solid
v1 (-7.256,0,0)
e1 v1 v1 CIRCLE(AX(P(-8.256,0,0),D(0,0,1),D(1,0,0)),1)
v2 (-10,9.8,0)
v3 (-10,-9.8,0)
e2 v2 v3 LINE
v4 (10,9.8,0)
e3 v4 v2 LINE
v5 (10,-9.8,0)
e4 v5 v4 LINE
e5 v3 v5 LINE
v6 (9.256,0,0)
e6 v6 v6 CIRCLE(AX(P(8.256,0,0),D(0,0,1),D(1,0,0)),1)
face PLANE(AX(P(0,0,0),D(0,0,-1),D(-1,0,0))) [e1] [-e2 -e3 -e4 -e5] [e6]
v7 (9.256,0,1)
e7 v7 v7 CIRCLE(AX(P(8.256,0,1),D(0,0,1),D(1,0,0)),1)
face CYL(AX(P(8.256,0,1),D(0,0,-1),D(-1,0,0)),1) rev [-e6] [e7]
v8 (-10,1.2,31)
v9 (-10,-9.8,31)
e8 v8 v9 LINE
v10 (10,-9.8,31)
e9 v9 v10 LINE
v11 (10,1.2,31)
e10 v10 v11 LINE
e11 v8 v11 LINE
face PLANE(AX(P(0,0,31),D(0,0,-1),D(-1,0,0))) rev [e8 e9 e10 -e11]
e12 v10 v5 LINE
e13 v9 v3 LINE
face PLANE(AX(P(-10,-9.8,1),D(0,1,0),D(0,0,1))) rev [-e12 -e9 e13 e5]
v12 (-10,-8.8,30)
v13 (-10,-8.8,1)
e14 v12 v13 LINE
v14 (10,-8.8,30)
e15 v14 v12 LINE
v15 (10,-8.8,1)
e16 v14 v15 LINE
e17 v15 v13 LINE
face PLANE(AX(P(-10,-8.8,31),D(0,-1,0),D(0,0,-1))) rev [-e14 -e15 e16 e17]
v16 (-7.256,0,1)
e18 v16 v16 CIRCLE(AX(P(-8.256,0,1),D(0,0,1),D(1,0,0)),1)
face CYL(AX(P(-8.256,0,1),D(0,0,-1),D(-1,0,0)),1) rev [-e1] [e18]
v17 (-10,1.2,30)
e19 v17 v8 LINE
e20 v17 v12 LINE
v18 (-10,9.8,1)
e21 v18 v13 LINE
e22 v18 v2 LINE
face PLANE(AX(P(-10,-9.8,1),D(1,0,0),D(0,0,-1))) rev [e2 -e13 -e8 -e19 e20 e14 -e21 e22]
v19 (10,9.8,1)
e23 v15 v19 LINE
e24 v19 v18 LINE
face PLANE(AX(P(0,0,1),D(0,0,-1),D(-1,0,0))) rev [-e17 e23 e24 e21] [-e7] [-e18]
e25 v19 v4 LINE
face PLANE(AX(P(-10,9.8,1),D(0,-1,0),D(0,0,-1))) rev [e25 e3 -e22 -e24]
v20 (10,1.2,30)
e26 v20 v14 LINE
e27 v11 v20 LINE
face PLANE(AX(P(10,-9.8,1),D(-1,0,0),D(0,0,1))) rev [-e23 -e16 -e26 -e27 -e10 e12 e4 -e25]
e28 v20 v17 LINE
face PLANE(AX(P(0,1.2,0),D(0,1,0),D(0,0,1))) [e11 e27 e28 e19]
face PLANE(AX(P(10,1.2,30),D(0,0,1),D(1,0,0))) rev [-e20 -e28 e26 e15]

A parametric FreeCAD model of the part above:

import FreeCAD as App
import Part
import Sketcher
from FreeCAD import Vector


def add_polygon(sketch, points):
    """Adds a closed chain of lines whose ends are joined by coincident constraints."""
    first, n = sketch.GeometryCount, len(points)
    for a, b in zip(points, points[1:] + points[:1]):
        sketch.addGeometry(Part.LineSegment(App.Vector(*a, 0), App.Vector(*b, 0)), False)
    for i in range(n):
        sketch.addConstraint(Sketcher.Constraint("Coincident", first + i, 2, first + (i + 1) % n, 1))

doc = App.newDocument("Part")
body = doc.addObject("PartDesign::Body", "Body")

# Sketch on XY plane
sketch1 = body.newObject("Sketcher::SketchObject", "Sketch")
sketch1.AttachmentSupport = (doc.getObject("XY_Plane"), [""])
sketch1.MapMode = "FlatFace"
add_polygon(sketch1, [(-10, 9.8), (-10, -9.8), (10, -9.8), (10, 9.8)])  # lines 0-3
sketch1.addGeometry(Part.Circle(Vector(-8.256, 0, 0), Vector(0, 0, 1), 1), False)  # 4
sketch1.addGeometry(Part.Circle(Vector(8.256, 0, 0), Vector(0, 0, 1), 1), False)  # 5
sketch1.addConstraint(Sketcher.Constraint("Vertical", 0))
sketch1.addConstraint(Sketcher.Constraint("Horizontal", 1))
sketch1.addConstraint(Sketcher.Constraint("Vertical", 2))
sketch1.addConstraint(Sketcher.Constraint("Horizontal", 3))
sketch1.addConstraint(Sketcher.Constraint("Equal", 4, 5))
sketch1.addConstraint(Sketcher.Constraint("Symmetric", 4, 3, 5, 3, -1, 1))
sketch1.addConstraint(Sketcher.Constraint("Symmetric", 0, 2, 2, 2, -1, 1))
sketch1.addConstraint(Sketcher.Constraint("PointOnObject", 4, 3, -1))
sketch1.addConstraint(Sketcher.Constraint("Diameter", 4, 2.0))
sketch1.addConstraint(Sketcher.Constraint("DistanceX", 1, 1, 1, 2, 20.0))
sketch1.addConstraint(Sketcher.Constraint("DistanceY", 0, 2, 0, 1, 19.6))
sketch1.addConstraint(Sketcher.Constraint("DistanceX", 4, 3, -1, 1, 8.256))
pad1 = body.newObject("PartDesign::Pad", "Pad")
pad1.Profile = sketch1
pad1.Length = 1

# Sketch on XY plane
sketch2 = body.newObject("Sketcher::SketchObject", "Sketch001")
sketch2.AttachmentSupport = (doc.getObject("XY_Plane"), [""])
sketch2.MapMode = "FlatFace"
sketch2.AttachmentOffset = App.Placement(Vector(0, 0, 1), App.Rotation())
add_polygon(sketch2, [(-10, -8.8), (-10, -9.8), (10, -9.8), (10, -8.8)])  # lines 0-3
sketch2.addConstraint(Sketcher.Constraint("Vertical", 0))
sketch2.addConstraint(Sketcher.Constraint("Horizontal", 1))
sketch2.addConstraint(Sketcher.Constraint("Vertical", 2))
sketch2.addConstraint(Sketcher.Constraint("Horizontal", 3))
sketch2.addConstraint(Sketcher.Constraint("DistanceX", 1, 1, 1, 2, 20.0))
sketch2.addConstraint(Sketcher.Constraint("DistanceY", 0, 2, 0, 1, 1.0))
sketch2.addConstraint(Sketcher.Constraint("DistanceX", 0, 2, -1, 1, 10.0))
sketch2.addConstraint(Sketcher.Constraint("DistanceY", 0, 2, -1, 1, 9.8))
pad2 = body.newObject("PartDesign::Pad", "Pad001")
pad2.Profile = sketch2
pad2.Length = 30

# Sketch on XZ plane
sketch3 = body.newObject("Sketcher::SketchObject", "Sketch002")
sketch3.AttachmentSupport = (doc.getObject("XZ_Plane"), [""])
sketch3.MapMode = "FlatFace"
sketch3.AttachmentOffset = App.Placement(Vector(0, 0, 8.8), App.Rotation())
add_polygon(sketch3, [(-10, 30), (-10, 31), (10, 31), (10, 30)])  # lines 0-3
sketch3.addConstraint(Sketcher.Constraint("Vertical", 0))
sketch3.addConstraint(Sketcher.Constraint("Horizontal", 1))
sketch3.addConstraint(Sketcher.Constraint("Vertical", 2))
sketch3.addConstraint(Sketcher.Constraint("Horizontal", 3))
sketch3.addConstraint(Sketcher.Constraint("DistanceX", 1, 1, 1, 2, 20.0))
sketch3.addConstraint(Sketcher.Constraint("DistanceY", 0, 1, 0, 2, 1.0))
sketch3.addConstraint(Sketcher.Constraint("DistanceX", 0, 2, -1, 1, 10.0))
sketch3.addConstraint(Sketcher.Constraint("DistanceY", -1, 1, 0, 2, 31.0))
pad3 = body.newObject("PartDesign::Pad", "Pad002")
pad3.Profile = sketch3
pad3.Length = 10
pad3.Reversed = True

doc.recompute()
